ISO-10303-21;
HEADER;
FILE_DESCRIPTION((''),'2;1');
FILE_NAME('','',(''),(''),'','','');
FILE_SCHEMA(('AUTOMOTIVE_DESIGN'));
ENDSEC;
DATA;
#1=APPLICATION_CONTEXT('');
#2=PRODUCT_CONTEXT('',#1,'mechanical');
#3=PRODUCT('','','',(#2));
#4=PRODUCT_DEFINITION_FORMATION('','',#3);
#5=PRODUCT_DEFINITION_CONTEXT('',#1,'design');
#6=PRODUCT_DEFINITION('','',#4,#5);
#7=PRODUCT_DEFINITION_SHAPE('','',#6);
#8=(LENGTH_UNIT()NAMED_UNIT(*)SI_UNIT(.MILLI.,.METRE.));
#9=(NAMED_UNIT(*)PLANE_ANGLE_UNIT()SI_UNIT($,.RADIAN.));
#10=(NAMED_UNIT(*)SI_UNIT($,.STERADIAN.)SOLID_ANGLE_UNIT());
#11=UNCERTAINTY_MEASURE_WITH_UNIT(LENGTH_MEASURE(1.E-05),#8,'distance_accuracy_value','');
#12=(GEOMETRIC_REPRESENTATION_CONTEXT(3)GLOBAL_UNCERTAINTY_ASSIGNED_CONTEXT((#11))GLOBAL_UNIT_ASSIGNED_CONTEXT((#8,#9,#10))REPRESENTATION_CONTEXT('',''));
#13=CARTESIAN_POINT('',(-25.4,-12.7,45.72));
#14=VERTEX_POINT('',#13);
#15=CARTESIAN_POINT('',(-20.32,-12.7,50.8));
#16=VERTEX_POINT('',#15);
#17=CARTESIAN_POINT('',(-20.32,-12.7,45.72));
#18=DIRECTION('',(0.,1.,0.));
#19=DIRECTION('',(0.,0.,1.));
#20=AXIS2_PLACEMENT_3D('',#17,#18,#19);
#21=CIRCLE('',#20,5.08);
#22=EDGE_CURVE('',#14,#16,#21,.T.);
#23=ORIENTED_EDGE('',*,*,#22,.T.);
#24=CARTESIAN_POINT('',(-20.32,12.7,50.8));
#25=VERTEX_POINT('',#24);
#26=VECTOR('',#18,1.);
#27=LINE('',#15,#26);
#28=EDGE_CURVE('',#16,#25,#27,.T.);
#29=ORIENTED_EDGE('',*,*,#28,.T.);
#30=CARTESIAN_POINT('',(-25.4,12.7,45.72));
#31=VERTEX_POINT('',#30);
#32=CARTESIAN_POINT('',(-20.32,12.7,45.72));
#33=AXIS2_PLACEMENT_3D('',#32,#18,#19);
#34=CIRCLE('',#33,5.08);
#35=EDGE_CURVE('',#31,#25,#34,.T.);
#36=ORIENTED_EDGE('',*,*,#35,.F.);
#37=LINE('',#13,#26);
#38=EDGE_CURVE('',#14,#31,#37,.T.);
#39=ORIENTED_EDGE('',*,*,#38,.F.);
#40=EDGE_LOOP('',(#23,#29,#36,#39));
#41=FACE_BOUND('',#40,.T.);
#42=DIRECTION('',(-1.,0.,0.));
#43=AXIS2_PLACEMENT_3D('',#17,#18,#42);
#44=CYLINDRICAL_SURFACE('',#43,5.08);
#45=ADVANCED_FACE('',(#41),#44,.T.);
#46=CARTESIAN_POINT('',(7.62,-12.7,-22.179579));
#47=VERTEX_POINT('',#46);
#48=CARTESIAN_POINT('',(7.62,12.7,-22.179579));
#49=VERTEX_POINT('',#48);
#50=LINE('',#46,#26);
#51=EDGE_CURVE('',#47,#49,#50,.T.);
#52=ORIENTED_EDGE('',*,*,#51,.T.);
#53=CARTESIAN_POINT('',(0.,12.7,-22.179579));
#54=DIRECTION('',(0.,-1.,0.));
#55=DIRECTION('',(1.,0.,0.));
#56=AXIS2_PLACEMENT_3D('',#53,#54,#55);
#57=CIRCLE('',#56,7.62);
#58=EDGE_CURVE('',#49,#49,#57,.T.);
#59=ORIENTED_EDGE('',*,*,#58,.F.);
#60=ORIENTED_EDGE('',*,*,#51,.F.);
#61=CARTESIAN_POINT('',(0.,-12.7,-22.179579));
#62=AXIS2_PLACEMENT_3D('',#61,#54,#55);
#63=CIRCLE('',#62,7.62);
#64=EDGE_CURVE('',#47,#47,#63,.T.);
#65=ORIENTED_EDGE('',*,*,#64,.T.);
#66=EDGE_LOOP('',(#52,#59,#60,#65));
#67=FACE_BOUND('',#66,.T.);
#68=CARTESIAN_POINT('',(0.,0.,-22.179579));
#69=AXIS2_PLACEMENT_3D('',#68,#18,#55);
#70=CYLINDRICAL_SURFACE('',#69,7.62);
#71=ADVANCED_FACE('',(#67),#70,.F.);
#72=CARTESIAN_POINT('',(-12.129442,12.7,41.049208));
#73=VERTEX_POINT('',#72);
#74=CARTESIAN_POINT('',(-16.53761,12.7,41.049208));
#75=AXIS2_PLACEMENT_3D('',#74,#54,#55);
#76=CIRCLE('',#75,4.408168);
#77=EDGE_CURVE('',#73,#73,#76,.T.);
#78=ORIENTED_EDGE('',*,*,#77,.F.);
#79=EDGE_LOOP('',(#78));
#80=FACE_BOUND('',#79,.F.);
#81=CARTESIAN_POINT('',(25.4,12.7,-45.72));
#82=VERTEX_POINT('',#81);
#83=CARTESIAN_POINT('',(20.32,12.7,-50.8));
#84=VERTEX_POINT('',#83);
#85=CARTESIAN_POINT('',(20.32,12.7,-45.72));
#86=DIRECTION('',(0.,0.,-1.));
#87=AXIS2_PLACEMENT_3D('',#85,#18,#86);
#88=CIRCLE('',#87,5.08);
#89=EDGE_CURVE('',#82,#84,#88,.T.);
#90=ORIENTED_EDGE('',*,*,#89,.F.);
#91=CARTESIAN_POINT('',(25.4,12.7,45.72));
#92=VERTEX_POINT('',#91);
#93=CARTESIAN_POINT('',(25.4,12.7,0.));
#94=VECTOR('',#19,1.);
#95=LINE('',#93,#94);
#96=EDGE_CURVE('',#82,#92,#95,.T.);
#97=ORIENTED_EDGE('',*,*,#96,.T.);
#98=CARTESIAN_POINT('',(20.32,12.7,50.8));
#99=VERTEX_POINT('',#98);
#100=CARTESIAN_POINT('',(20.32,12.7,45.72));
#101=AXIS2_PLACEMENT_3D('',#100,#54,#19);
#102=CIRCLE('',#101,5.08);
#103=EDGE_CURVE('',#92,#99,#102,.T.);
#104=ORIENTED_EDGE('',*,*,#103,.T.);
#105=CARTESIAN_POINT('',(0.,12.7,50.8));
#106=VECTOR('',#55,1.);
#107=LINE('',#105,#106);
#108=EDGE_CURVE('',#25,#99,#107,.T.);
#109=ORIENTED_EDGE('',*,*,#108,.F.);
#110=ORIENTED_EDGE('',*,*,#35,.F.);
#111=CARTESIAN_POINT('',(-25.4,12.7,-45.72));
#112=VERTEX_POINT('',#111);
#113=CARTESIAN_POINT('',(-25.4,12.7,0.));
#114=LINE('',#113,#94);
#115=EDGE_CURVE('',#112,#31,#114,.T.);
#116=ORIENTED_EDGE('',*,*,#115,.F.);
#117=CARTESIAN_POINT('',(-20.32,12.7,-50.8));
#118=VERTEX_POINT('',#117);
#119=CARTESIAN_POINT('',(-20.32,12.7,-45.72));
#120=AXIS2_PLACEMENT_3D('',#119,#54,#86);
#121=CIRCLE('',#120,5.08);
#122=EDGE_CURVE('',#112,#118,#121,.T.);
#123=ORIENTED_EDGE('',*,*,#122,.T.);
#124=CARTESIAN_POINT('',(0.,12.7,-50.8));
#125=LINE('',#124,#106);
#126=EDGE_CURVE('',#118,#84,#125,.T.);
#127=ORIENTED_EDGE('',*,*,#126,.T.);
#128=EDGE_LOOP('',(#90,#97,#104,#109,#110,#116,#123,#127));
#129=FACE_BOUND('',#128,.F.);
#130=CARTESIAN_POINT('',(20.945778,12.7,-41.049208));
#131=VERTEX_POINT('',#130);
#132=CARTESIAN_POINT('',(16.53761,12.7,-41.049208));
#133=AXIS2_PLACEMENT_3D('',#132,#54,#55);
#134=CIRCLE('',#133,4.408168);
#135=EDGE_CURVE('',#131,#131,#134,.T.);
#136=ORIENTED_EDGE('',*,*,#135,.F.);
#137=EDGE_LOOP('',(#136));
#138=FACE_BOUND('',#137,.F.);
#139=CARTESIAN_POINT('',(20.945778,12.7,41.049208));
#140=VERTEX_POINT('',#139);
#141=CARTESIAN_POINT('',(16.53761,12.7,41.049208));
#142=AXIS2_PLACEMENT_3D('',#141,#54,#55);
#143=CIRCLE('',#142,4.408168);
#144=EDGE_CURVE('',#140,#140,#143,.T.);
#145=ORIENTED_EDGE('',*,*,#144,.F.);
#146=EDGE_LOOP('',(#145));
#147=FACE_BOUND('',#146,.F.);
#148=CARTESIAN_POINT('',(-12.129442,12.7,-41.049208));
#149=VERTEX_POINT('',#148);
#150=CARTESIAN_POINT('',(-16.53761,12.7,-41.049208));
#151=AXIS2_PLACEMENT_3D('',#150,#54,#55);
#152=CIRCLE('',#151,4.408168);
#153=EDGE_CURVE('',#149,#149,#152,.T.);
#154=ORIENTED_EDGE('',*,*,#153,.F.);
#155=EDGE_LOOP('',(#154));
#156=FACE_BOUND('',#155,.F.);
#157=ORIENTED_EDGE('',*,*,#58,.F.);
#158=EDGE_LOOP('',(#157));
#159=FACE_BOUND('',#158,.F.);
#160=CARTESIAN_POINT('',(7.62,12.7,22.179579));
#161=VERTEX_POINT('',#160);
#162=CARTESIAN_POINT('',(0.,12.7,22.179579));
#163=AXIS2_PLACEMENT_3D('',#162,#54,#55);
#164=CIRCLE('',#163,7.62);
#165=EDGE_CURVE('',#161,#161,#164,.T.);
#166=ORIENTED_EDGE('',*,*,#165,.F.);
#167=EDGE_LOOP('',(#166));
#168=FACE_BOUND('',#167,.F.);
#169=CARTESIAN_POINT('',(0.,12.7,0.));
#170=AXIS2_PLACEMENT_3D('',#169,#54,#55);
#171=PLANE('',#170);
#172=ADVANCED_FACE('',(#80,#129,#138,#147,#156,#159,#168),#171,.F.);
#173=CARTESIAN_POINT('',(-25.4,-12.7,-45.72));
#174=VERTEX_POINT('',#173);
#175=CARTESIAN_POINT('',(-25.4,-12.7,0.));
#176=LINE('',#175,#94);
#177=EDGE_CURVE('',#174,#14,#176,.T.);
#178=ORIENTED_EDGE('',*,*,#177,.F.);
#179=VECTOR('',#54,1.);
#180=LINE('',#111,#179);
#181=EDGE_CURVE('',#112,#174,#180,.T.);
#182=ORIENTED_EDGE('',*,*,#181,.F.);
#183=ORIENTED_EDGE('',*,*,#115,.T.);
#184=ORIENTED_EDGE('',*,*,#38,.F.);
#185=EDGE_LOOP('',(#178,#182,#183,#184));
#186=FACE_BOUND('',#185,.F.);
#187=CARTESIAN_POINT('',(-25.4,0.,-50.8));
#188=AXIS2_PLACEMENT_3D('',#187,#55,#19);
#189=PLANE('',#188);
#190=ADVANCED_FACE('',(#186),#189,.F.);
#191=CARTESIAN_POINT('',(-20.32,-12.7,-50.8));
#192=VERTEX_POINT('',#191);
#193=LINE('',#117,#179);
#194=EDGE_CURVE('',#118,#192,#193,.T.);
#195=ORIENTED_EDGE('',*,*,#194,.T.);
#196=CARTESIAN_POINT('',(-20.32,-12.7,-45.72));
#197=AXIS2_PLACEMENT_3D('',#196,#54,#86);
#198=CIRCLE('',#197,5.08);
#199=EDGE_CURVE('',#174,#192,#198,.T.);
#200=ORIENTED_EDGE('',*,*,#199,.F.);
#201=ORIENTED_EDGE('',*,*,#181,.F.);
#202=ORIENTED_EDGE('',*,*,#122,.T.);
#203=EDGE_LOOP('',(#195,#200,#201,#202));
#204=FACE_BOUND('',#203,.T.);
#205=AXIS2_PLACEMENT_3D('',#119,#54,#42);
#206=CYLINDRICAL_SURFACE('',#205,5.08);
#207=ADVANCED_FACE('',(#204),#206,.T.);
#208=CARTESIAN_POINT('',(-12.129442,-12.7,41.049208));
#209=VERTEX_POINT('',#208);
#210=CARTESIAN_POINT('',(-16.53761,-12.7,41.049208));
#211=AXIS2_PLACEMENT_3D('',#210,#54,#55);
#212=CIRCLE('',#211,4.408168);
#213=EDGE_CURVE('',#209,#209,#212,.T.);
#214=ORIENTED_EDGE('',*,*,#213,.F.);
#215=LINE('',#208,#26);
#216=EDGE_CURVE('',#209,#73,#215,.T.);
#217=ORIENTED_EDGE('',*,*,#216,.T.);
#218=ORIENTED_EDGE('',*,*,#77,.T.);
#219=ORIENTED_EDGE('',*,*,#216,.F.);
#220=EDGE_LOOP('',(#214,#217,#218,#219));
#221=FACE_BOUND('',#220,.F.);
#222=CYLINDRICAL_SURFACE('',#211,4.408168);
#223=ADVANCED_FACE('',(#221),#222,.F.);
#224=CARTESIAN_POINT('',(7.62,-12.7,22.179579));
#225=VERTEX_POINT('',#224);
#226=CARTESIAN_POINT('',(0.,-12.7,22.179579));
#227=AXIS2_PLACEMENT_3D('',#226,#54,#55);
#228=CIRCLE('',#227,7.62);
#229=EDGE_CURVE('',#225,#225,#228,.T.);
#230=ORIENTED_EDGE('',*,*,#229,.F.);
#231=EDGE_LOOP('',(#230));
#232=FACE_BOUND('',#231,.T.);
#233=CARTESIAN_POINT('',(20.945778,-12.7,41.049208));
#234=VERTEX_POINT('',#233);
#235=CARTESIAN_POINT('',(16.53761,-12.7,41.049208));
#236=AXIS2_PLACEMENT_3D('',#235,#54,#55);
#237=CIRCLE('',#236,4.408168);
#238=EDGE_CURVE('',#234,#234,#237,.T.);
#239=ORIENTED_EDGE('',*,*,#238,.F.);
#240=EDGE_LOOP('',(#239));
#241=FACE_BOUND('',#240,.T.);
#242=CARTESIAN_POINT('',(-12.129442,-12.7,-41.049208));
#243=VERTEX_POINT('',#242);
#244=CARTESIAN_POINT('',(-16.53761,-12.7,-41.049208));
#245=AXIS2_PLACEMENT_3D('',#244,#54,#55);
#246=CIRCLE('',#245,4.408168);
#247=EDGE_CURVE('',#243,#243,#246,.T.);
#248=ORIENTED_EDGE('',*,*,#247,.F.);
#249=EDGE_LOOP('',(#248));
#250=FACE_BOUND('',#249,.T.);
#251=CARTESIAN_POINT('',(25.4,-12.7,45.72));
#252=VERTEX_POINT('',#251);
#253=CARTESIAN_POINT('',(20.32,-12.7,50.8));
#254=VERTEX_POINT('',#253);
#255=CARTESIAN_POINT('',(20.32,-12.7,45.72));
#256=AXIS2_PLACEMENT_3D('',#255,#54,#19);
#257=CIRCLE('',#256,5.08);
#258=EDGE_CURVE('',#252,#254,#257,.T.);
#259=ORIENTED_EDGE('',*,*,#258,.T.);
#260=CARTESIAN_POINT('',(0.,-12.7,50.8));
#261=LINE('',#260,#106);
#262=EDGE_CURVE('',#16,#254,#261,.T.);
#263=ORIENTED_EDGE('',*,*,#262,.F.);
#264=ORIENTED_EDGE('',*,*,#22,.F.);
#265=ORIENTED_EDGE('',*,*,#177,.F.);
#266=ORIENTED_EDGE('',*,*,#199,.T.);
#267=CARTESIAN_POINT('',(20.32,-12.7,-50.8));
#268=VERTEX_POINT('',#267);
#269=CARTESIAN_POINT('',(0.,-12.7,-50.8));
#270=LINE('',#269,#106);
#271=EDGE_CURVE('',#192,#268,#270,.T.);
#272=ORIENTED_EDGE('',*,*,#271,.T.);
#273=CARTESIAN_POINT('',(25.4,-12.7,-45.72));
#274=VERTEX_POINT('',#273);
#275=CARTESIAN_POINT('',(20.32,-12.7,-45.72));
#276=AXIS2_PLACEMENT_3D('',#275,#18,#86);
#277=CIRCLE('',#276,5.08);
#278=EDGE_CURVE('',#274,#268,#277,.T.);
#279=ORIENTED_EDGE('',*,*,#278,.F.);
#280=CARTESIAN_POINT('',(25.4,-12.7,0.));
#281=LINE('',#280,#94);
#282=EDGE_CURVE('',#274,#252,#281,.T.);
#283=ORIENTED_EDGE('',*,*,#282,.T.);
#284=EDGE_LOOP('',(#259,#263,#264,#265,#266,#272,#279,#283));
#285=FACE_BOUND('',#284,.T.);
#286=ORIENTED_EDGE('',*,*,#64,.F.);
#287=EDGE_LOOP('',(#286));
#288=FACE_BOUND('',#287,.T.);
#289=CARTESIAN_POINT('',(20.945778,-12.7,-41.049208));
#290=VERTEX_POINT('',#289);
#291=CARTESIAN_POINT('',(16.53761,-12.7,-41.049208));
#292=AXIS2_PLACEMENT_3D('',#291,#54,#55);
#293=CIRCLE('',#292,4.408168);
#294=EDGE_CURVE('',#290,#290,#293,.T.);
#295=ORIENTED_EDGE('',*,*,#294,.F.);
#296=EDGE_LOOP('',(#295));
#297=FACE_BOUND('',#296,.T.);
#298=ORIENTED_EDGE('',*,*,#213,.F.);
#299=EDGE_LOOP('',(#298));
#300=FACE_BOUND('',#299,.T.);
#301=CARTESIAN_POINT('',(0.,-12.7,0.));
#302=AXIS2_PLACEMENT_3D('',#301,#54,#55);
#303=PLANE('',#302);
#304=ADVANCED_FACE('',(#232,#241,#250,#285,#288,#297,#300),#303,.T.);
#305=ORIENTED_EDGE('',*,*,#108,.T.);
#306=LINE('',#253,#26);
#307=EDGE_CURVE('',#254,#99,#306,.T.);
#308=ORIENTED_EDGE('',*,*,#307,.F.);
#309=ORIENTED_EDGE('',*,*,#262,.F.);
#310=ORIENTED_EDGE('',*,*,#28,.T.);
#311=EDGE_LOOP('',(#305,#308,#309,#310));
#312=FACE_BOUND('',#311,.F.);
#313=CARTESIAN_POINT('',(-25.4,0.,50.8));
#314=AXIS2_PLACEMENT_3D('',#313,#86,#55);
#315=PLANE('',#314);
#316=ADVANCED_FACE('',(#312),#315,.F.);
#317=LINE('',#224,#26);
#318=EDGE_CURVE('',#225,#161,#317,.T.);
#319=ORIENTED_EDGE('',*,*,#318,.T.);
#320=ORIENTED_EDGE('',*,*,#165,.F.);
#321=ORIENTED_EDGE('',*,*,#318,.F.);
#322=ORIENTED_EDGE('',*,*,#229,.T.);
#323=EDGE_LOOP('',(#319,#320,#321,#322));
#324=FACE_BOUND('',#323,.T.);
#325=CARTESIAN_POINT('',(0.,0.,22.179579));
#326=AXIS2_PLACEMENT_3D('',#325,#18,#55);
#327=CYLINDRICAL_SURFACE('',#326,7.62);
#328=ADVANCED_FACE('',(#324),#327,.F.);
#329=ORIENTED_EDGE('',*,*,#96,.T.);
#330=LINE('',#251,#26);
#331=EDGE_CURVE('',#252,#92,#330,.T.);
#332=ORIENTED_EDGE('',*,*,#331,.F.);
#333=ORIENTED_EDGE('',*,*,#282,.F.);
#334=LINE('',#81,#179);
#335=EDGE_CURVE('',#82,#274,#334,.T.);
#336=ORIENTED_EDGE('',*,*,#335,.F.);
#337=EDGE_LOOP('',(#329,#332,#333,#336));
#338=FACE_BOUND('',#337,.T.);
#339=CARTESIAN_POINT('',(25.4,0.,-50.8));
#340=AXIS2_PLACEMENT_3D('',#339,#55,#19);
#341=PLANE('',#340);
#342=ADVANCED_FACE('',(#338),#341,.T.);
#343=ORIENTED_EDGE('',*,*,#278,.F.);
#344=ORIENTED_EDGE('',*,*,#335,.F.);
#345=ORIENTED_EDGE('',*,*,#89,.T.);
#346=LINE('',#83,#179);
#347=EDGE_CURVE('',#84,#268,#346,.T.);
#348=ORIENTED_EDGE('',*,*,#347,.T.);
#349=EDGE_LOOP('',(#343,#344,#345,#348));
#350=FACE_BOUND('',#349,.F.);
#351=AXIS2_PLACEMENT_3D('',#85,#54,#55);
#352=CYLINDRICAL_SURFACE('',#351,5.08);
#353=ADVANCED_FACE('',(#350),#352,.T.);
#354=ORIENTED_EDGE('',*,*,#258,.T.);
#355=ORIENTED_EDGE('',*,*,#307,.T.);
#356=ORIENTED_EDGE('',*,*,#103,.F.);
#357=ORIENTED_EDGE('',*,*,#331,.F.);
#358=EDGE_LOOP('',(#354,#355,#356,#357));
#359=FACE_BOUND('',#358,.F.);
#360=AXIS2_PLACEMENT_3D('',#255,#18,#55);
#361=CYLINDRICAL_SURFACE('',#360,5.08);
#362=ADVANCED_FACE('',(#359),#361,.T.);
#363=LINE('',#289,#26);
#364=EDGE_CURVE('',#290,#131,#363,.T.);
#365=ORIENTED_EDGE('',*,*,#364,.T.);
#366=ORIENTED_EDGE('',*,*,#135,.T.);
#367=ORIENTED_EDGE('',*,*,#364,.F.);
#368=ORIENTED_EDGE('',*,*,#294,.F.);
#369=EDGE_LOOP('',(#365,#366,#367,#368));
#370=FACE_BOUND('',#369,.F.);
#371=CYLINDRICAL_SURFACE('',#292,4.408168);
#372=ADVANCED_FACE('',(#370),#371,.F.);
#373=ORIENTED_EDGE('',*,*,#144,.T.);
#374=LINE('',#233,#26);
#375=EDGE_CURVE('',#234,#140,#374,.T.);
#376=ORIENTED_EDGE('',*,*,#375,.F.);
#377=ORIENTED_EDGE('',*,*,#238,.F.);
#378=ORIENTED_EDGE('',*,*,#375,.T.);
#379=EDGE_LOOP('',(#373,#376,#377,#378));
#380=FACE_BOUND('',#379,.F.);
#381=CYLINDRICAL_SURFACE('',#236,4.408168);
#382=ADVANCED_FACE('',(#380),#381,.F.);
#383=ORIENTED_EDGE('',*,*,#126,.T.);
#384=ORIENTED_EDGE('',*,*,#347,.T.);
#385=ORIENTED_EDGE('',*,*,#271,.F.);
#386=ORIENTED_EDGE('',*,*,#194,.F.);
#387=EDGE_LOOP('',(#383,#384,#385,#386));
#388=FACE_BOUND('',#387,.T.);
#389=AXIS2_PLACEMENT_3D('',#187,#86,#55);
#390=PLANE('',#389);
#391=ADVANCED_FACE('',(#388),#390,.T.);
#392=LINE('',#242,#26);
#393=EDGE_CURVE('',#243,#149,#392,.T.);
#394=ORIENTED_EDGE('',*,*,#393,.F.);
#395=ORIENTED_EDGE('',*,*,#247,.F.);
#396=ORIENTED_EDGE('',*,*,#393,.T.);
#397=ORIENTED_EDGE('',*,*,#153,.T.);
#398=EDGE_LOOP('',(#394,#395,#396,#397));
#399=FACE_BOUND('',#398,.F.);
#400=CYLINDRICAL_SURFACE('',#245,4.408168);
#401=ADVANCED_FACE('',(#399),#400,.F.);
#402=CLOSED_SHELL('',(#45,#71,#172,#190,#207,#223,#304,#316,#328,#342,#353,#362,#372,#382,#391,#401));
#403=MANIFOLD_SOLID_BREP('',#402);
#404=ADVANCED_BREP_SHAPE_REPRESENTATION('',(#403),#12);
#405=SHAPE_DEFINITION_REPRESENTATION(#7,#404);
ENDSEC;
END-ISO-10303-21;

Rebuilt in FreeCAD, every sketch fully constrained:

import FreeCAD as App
import Part
import Sketcher
Q = App.Units.Quantity


def edges_at(feature, points):
    """Names of the edges that pass closest to the given points."""
    edges = feature.Shape.Edges
    near = lambda p: min(range(len(edges)), key=lambda i: edges[i].distToShape(Part.Vertex(*p))[0])
    return sorted({f"Edge{near(p) + 1}" for p in points})

doc = App.newDocument("Part")
params = doc.addObject("Spreadsheet::Sheet", "Params")
for row, (alias, value) in enumerate([
    ("sketch1_diameter", "0.6 in"),
    ("sketch1_width", "2 in"),
    ("sketch1_height", "4 in"),
    ("pad1_length", "1 in"),
    ("fillet_radius", "0.2 in"),
], start=1):
    params.set(f"A{row}", alias)
    params.set(f"B{row}", "=" + value)
    params.setAlias(f"B{row}", alias)

body = doc.addObject("PartDesign::Body", "Body")

# Sketch on XZ plane
sketch1 = doc.addObject("Sketcher::SketchObject", "Sketch")
body.addObject(sketch1)
sketch1.AttachmentSupport = (doc.XZ_Plane, [""])
sketch1.MapMode = "FlatFace"
sketch1.addGeometry([
    Part.LineSegment(App.Vector(-25.4, 50.8, 0), App.Vector(-25.4, -50.8, 0)),  # 0
    Part.LineSegment(App.Vector(-25.4, -50.8, 0), App.Vector(25.4, -50.8, 0)),  # 1
    Part.LineSegment(App.Vector(25.4, -50.8, 0), App.Vector(25.4, 50.8, 0)),  # 2
    Part.LineSegment(App.Vector(25.4, 50.8, 0), App.Vector(-25.4, 50.8, 0)),  # 3
    Part.Circle(App.Vector(0, -22.179579, 0), App.Vector(0, 0, 1), 7.62),  # 4
    Part.Circle(App.Vector(0, 22.179579, 0), App.Vector(0, 0, 1), 7.62),  # 5
], False)
sketch1.addConstraint([
    Sketcher.Constraint("Coincident", 0, 2, 1, 1),
    Sketcher.Constraint("Coincident", 1, 2, 2, 1),
    Sketcher.Constraint("Coincident", 2, 2, 3, 1),
    Sketcher.Constraint("Coincident", 3, 2, 0, 1),
    Sketcher.Constraint("Vertical", 0),
    Sketcher.Constraint("Horizontal", 1),
    Sketcher.Constraint("Vertical", 2),
    Sketcher.Constraint("Horizontal", 3),
    Sketcher.Constraint("Equal", 4, 5),
    Sketcher.Constraint("Symmetric", 4, 3, 5, 3, -1, 1),
    Sketcher.Constraint("Symmetric", 0, 2, 2, 2, -1, 1),
    Sketcher.Constraint("PointOnObject", 4, 3, -2),
    Sketcher.Constraint("Diameter", 4, Q("0.6 in")),
    Sketcher.Constraint("DistanceX", 1, 1, 1, 2, Q("2 in")),
    Sketcher.Constraint("DistanceY", 0, 2, 0, 1, Q("4 in")),
    Sketcher.Constraint("DistanceY", 4, 3, -1, 1, Q("22.179579 mm")),
])
sketch1.setExpression("Constraints[12]", "Params.sketch1_diameter")
sketch1.setExpression("Constraints[13]", "Params.sketch1_width")
sketch1.setExpression("Constraints[14]", "Params.sketch1_height")
pad1 = doc.addObject("PartDesign::Pad", "Pad")
body.addObject(pad1)
pad1.Profile = sketch1
pad1.setExpression("Length", "Params.pad1_length")
pad1.Midplane = True
doc.recompute()

fillet = doc.addObject("PartDesign::Fillet", "Fillet")
body.addObject(fillet)
fillet.Base = (pad1, edges_at(pad1, [
    (-25.4, 0, 50.8),
    (25.4, 0, 50.8),
    (25.4, 0, -50.8),
    (-25.4, 0, -50.8),
]))
fillet.setExpression("Radius", "Params.fillet_radius")

# Sketch on XZ plane
sketch2 = doc.addObject("Sketcher::SketchObject", "Sketch001")
body.addObject(sketch2)
sketch2.AttachmentSupport = (doc.XZ_Plane, [""])
sketch2.MapMode = "FlatFace"
sketch2.AttachmentOffset = App.Placement(App.Vector(0, 0, 0.5 * 25.4), App.Rotation())
sketch2.addGeometry([
    Part.Circle(App.Vector(-16.53761, 41.049208, 0), App.Vector(0, 0, 1), 4.408168),
    Part.Circle(App.Vector(16.53761, 41.049208, 0), App.Vector(0, 0, 1), 4.408168),
    Part.Circle(App.Vector(16.53761, -41.049208, 0), App.Vector(0, 0, 1), 4.408168),
    Part.Circle(App.Vector(-16.53761, -41.049208, 0), App.Vector(0, 0, 1), 4.408168),
], False)
sketch2.addConstraint([
    Sketcher.Constraint("Equal", 0, 1),
    Sketcher.Constraint("Equal", 1, 2),
    Sketcher.Constraint("Equal", 2, 3),
    Sketcher.Constraint("Symmetric", 0, 3, 2, 3, -1, 1),
    Sketcher.Constraint("Symmetric", 1, 3, 3, 3, -1, 1),
    Sketcher.Constraint("Symmetric", 0, 3, 1, 3, -2),
    Sketcher.Constraint("Diameter", 0, Q("0.3470998 in")),
    Sketcher.Constraint("DistanceX", 0, 3, -1, 1, Q("16.53761 mm")),
    Sketcher.Constraint("DistanceY", -1, 1, 0, 3, Q("41.049208 mm")),
])
pocket1 = doc.addObject("PartDesign::Pocket", "Pocket")
body.addObject(pocket1)
pocket1.Profile = sketch2
pocket1.Type = "ThroughAll"

doc.recompute()
